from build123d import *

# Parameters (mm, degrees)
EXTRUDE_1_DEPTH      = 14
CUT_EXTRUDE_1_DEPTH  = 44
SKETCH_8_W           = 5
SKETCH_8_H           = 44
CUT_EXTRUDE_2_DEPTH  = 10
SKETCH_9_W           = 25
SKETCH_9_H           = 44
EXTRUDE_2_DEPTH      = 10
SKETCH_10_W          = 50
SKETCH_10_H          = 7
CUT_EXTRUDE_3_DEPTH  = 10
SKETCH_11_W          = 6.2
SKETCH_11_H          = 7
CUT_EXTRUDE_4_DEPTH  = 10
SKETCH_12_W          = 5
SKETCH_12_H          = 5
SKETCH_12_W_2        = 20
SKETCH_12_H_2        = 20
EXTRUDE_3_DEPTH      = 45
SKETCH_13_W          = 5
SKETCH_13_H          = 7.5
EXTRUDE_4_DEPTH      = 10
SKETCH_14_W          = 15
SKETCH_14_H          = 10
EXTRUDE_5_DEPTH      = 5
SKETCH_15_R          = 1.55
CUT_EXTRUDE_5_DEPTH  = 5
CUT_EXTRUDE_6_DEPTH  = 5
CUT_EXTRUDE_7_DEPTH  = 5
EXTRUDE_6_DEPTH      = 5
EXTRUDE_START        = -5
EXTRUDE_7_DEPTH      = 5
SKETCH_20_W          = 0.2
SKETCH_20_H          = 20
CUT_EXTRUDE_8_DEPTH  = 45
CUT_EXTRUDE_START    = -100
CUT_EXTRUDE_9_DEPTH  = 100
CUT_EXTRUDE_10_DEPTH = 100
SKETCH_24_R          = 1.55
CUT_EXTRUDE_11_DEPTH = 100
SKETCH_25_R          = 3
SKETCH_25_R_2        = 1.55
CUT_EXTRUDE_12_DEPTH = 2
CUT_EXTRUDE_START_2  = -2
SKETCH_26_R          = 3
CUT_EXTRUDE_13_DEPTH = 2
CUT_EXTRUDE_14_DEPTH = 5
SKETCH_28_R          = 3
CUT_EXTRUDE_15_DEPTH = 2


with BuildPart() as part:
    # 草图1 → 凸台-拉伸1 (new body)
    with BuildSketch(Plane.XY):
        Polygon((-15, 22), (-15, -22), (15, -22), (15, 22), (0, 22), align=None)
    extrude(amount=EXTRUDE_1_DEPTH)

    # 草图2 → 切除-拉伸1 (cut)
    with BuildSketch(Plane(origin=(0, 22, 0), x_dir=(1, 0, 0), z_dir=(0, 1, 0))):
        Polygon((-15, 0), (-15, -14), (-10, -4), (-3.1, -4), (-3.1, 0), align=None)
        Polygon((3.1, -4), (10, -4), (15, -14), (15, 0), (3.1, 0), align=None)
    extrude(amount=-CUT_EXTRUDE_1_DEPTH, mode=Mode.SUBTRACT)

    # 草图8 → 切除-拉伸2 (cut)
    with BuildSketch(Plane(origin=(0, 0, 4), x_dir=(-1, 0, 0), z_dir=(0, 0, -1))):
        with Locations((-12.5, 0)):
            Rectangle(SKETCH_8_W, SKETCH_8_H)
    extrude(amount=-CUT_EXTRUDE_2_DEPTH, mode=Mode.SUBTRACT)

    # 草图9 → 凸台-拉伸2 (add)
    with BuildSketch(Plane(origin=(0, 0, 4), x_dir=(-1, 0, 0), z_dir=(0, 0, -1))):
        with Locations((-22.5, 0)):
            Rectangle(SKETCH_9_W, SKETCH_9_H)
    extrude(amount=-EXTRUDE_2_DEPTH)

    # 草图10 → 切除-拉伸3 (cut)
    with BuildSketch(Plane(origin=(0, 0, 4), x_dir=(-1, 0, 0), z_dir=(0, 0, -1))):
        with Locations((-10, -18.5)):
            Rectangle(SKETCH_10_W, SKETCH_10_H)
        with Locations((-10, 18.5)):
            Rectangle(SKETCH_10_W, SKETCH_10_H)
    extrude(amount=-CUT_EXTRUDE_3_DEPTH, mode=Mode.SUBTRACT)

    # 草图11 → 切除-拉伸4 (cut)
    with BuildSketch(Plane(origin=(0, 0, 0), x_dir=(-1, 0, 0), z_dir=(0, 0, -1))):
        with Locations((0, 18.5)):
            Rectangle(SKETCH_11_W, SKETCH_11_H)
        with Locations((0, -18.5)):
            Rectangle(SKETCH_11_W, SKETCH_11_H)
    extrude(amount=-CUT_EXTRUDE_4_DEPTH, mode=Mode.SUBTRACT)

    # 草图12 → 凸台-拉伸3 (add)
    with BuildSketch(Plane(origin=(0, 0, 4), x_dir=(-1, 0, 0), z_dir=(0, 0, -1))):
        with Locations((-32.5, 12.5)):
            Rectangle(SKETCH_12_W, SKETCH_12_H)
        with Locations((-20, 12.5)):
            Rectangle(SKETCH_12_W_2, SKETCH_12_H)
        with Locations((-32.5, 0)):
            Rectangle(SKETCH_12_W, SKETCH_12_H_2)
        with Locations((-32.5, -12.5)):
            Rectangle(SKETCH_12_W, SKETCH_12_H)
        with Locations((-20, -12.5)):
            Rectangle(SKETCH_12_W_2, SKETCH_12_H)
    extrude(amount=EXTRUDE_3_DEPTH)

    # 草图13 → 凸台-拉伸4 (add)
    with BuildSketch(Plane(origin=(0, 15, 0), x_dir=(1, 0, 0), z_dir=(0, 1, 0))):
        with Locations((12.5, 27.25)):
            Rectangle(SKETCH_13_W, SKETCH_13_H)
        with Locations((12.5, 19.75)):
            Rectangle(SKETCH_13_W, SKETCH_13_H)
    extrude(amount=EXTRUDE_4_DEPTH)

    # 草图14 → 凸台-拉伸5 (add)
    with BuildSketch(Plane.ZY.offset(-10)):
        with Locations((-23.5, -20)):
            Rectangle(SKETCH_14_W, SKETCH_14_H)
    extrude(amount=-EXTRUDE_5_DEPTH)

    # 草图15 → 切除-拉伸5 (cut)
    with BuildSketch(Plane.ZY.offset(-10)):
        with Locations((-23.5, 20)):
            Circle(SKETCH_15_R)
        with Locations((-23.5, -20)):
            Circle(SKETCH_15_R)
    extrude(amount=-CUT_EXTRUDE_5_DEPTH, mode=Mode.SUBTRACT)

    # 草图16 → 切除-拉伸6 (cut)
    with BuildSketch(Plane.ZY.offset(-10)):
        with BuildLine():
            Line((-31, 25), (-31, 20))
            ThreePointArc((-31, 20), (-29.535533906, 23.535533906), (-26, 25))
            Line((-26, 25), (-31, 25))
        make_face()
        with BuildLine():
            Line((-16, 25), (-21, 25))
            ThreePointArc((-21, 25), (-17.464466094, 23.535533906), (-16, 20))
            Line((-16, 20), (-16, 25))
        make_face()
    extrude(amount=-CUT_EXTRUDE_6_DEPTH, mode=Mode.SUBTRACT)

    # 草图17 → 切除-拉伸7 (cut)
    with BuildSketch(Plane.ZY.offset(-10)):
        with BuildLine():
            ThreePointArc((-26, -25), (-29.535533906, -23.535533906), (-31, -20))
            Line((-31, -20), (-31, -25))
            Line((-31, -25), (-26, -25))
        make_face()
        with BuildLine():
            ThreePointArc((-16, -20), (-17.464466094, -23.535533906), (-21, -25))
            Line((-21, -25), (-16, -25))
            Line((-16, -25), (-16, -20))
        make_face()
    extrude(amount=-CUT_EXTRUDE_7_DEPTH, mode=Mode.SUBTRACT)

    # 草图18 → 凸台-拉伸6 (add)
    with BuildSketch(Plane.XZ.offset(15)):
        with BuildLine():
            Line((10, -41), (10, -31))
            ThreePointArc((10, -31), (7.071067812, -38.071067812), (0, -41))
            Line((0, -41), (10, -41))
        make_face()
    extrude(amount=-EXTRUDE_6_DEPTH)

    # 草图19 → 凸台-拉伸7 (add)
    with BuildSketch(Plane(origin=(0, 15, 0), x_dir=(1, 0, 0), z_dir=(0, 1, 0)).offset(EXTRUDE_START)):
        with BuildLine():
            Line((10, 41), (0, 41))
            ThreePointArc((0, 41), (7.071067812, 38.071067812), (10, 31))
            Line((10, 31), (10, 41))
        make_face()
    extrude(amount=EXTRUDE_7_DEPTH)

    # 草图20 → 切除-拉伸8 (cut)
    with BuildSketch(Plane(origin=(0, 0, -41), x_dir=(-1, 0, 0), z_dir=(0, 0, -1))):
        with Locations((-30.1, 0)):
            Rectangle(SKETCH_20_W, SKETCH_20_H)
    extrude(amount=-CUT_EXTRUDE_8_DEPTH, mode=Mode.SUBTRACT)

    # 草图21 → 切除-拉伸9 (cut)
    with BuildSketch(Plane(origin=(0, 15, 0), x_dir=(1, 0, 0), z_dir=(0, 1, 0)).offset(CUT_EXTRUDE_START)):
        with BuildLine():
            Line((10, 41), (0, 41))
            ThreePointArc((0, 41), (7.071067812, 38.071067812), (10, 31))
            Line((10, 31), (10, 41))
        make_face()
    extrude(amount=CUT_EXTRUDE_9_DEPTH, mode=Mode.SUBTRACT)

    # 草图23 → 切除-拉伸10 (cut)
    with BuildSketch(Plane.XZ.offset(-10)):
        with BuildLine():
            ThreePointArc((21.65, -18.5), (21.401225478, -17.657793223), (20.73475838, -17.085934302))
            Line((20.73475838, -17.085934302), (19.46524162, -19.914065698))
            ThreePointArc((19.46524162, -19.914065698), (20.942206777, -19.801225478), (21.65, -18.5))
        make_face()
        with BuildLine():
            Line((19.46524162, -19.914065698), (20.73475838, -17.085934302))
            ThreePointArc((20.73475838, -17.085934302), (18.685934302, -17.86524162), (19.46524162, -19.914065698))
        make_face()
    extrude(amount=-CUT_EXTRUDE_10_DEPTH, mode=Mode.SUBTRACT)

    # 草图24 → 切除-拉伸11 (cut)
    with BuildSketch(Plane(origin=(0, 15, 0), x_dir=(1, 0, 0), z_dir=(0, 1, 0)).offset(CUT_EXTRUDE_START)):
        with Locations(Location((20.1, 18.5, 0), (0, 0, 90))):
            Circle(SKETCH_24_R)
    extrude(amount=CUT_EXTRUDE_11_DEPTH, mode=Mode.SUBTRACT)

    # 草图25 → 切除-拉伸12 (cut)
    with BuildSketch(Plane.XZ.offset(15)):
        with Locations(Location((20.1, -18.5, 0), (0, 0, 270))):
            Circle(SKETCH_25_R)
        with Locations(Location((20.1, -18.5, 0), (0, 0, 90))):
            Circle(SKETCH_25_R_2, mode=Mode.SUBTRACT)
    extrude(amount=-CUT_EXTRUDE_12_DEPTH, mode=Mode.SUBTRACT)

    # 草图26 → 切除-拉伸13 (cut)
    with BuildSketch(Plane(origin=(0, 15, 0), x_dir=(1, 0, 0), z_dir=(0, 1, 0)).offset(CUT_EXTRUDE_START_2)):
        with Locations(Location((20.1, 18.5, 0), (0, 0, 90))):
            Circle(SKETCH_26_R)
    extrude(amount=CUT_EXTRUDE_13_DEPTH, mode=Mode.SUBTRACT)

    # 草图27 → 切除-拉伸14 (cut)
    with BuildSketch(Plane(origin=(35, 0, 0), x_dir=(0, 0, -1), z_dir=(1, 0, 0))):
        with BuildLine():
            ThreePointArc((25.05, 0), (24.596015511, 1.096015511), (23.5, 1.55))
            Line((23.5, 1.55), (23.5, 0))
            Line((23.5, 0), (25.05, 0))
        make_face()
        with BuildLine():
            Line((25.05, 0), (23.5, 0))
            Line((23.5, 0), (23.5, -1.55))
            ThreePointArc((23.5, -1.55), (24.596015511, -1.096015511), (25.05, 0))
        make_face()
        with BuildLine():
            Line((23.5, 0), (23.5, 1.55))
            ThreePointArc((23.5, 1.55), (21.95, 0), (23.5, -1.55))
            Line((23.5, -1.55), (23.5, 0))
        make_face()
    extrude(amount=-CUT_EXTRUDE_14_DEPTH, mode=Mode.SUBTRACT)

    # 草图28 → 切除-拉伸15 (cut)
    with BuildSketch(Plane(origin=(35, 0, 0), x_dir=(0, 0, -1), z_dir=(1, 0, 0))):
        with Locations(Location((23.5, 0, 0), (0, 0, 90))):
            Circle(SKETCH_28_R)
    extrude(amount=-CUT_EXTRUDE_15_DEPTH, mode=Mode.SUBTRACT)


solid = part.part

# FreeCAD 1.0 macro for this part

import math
import FreeCAD as App
import Part
import Sketcher
Q = App.Units.Quantity

doc = App.newDocument("Part")
params = doc.addObject("Spreadsheet::Sheet", "Params")
for row, (alias, value) in enumerate([
    ("sketch1_width", "30 mm"),
    ("sketch1_height", "44 mm"),
    ("pad1_length", "14 mm"),
    ("sketch2_height", "14 mm"),
    ("sketch2_height2", "4 mm"),
    ("sketch2_width", "6.9 mm"),
    ("sketch2_width2", "11.9 mm"),
    ("pocket1_length", "44 mm"),
    ("sketch3_width", "5 mm"),
    ("sketch3_height", "44 mm"),
    ("pocket2_length", "10 mm"),
    ("sketch4_width", "25 mm"),
    ("sketch4_height", "44 mm"),
    ("pad2_length", "10 mm"),
    ("sketch5_width", "50 mm"),
    ("sketch5_height", "7 mm"),
    ("pocket3_length", "10 mm"),
    ("sketch6_height", "7 mm"),
    ("sketch6_width", "6.2 mm"),
    ("pocket4_length", "10 mm"),
    ("sketch7_width", "25 mm"),
    ("sketch7_width2", "20 mm"),
    ("sketch7_height", "30 mm"),
    ("pad3_length", "45 mm"),
    ("sketch8_width", "5 mm"),
    ("sketch8_height", "15 mm"),
    ("pad4_length", "10 mm"),
    ("sketch9_width", "10 mm"),
    ("sketch9_height", "15 mm"),
    ("pad5_length", "5 mm"),
    ("sketch10_diameter", "3.1 mm"),
    ("pocket5_length", "5 mm"),
    ("sketch11_radius", "5 mm"),
    ("pocket6_length", "5 mm"),
    ("sketch12_radius", "5 mm"),
    ("pocket7_length", "5 mm"),
    ("sketch13_radius", "10 mm"),
    ("pad6_length", "5 mm"),
    ("sketch14_radius", "10 mm"),
    ("pad7_length", "5 mm"),
    ("sketch15_height", "20 mm"),
    ("sketch15_width", "0.2 mm"),
    ("pocket8_length", "45 mm"),
    ("sketch16_radius", "10 mm"),
    ("pocket9_length", "100 mm"),
    ("sketch17_radius", "1.55 mm"),
    ("pocket10_length", "100 mm"),
    ("sketch18_diameter", "3.1 mm"),
    ("pocket11_length", "100 mm"),
    ("sketch19_diameter", "6 mm"),
    ("sketch19_diameter2", "3.1 mm"),
    ("pocket12_length", "2 mm"),
    ("sketch20_diameter", "6 mm"),
    ("pocket13_length", "2 mm"),
    ("sketch21_radius", "1.55 mm"),
    ("pocket14_length", "5 mm"),
    ("sketch22_diameter", "6 mm"),
    ("pocket15_length", "2 mm"),
], start=1):
    params.set(f"A{row}", alias)
    params.set(f"B{row}", "=" + value)
    params.setAlias(f"B{row}", alias)

body = doc.addObject("PartDesign::Body", "Body")

sketch1 = body.newObject("Sketcher::SketchObject", "Sketch")
sketch1.AttachmentSupport = (doc.getObject("XY_Plane"), [""])
sketch1.MapMode = "FlatFace"
sketch1.addGeometry(Part.LineSegment(App.Vector(-15, 22, 0), App.Vector(-15, -22, 0)), False)
sketch1.addGeometry(Part.LineSegment(App.Vector(-15, -22, 0), App.Vector(15, -22, 0)), False)
sketch1.addGeometry(Part.LineSegment(App.Vector(15, -22, 0), App.Vector(15, 22, 0)), False)
sketch1.addGeometry(Part.LineSegment(App.Vector(15, 22, 0), App.Vector(-15, 22, 0)), False)
sketch1.addConstraint(Sketcher.Constraint("Coincident", 0, 2, 1, 1))
sketch1.addConstraint(Sketcher.Constraint("Coincident", 1, 2, 2, 1))
sketch1.addConstraint(Sketcher.Constraint("Coincident", 2, 2, 3, 1))
sketch1.addConstraint(Sketcher.Constraint("Coincident", 3, 2, 0, 1))
sketch1.addConstraint(Sketcher.Constraint("Vertical", 0))
sketch1.addConstraint(Sketcher.Constraint("Horizontal", 1))
sketch1.addConstraint(Sketcher.Constraint("Vertical", 2))
sketch1.addConstraint(Sketcher.Constraint("Horizontal", 3))
sketch1.addConstraint(Sketcher.Constraint("Symmetric", 0, 2, 2, 2, -1, 1))
sketch1.addConstraint(Sketcher.Constraint("DistanceX", 1, 1, 1, 2, Q("30 mm")))
sketch1.addConstraint(Sketcher.Constraint("DistanceY", 0, 2, 0, 1, Q("44 mm")))
sketch1.setExpression("Constraints[9]", "Params.sketch1_width")
sketch1.setExpression("Constraints[10]", "Params.sketch1_height")
pad1 = body.newObject("PartDesign::Pad", "Pad")
pad1.Profile = sketch1
pad1.setExpression("Length", "Params.pad1_length")

sketch2 = body.newObject("Sketcher::SketchObject", "Sketch001")
sketch2.AttachmentSupport = (doc.getObject("XZ_Plane"), [""])
sketch2.MapMode = "FlatFace"
sketch2.AttachmentOffset = App.Placement(App.Vector(0, 0, -22), App.Rotation())
sketch2.addGeometry(Part.LineSegment(App.Vector(-15, 0, 0), App.Vector(-15, 14, 0)), False)
sketch2.addGeometry(Part.LineSegment(App.Vector(-15, 14, 0), App.Vector(-10, 4, 0)), False)
sketch2.addGeometry(Part.LineSegment(App.Vector(-10, 4, 0), App.Vector(-3.1, 4, 0)), False)
sketch2.addGeometry(Part.LineSegment(App.Vector(-3.1, 4, 0), App.Vector(-3.1, 0, 0)), False)
sketch2.addGeometry(Part.LineSegment(App.Vector(-3.1, 0, 0), App.Vector(-15, 0, 0)), False)
sketch2.addGeometry(Part.LineSegment(App.Vector(3.1, 4, 0), App.Vector(10, 4, 0)), False)
sketch2.addGeometry(Part.LineSegment(App.Vector(10, 4, 0), App.Vector(15, 14, 0)), False)
sketch2.addGeometry(Part.LineSegment(App.Vector(15, 14, 0), App.Vector(15, 0, 0)), False)
sketch2.addGeometry(Part.LineSegment(App.Vector(15, 0, 0), App.Vector(3.1, 0, 0)), False)
sketch2.addGeometry(Part.LineSegment(App.Vector(3.1, 0, 0), App.Vector(3.1, 4, 0)), False)
sketch2.addConstraint(Sketcher.Constraint("Coincident", 0, 2, 1, 1))
sketch2.addConstraint(Sketcher.Constraint("Coincident", 1, 2, 2, 1))
sketch2.addConstraint(Sketcher.Constraint("Coincident", 2, 2, 3, 1))
sketch2.addConstraint(Sketcher.Constraint("Coincident", 3, 2, 4, 1))
sketch2.addConstraint(Sketcher.Constraint("Coincident", 4, 2, 0, 1))
sketch2.addConstraint(Sketcher.Constraint("Coincident", 5, 2, 6, 1))
sketch2.addConstraint(Sketcher.Constraint("Coincident", 6, 2, 7, 1))
sketch2.addConstraint(Sketcher.Constraint("Coincident", 7, 2, 8, 1))
sketch2.addConstraint(Sketcher.Constraint("Coincident", 8, 2, 9, 1))
sketch2.addConstraint(Sketcher.Constraint("Coincident", 9, 2, 5, 1))
sketch2.addConstraint(Sketcher.Constraint("Vertical", 0))
sketch2.addConstraint(Sketcher.Constraint("Horizontal", 2))
sketch2.addConstraint(Sketcher.Constraint("Vertical", 3))
sketch2.addConstraint(Sketcher.Constraint("Horizontal", 4))
sketch2.addConstraint(Sketcher.Constraint("Horizontal", 5))
sketch2.addConstraint(Sketcher.Constraint("Vertical", 7))
sketch2.addConstraint(Sketcher.Constraint("Horizontal", 8))
sketch2.addConstraint(Sketcher.Constraint("Vertical", 9))
sketch2.addConstraint(Sketcher.Constraint("Symmetric", 4, 2, 7, 2, -1, 1))
sketch2.addConstraint(Sketcher.Constraint("Symmetric", 1, 2, 5, 2, -2))
sketch2.addConstraint(Sketcher.Constraint("Symmetric", 3, 2, 8, 2, -2))
sketch2.addConstraint(Sketcher.Constraint("Horizontal", 0, 2, 6, 2))
sketch2.addConstraint(Sketcher.Constraint("DistanceY", 0, 1, 0, 2, Q("14 mm")))
sketch2.addConstraint(Sketcher.Constraint("DistanceY", 3, 2, 3, 1, Q("4 mm")))
sketch2.addConstraint(Sketcher.Constraint("DistanceX", 2, 1, 2, 2, Q("6.9 mm")))
sketch2.addConstraint(Sketcher.Constraint("DistanceX", 4, 2, 4, 1, Q("11.9 mm")))
sketch2.addConstraint(Sketcher.Constraint("DistanceX", 0, 2, -1, 1, Q("15 mm")))
sketch2.setExpression("Constraints[22]", "Params.sketch2_height")
sketch2.setExpression("Constraints[23]", "Params.sketch2_height2")
sketch2.setExpression("Constraints[24]", "Params.sketch2_width")
sketch2.setExpression("Constraints[25]", "Params.sketch2_width2")
pocket1 = body.newObject("PartDesign::Pocket", "Pocket")
pocket1.Profile = sketch2
pocket1.setExpression("Length", "Params.pocket1_length")
pocket1.Reversed = True

sketch3 = body.newObject("Sketcher::SketchObject", "Sketch002")
sketch3.AttachmentSupport = (doc.getObject("XY_Plane"), [""])
sketch3.MapMode = "FlatFace"
sketch3.AttachmentOffset = App.Placement(App.Vector(0, 0, 4), App.Rotation())
sketch3.addGeometry(Part.LineSegment(App.Vector(15, 22, 0), App.Vector(15, -22, 0)), False)
sketch3.addGeometry(Part.LineSegment(App.Vector(15, -22, 0), App.Vector(10, -22, 0)), False)
sketch3.addGeometry(Part.LineSegment(App.Vector(10, -22, 0), App.Vector(10, 22, 0)), False)
sketch3.addGeometry(Part.LineSegment(App.Vector(10, 22, 0), App.Vector(15, 22, 0)), False)
sketch3.addConstraint(Sketcher.Constraint("Coincident", 0, 2, 1, 1))
sketch3.addConstraint(Sketcher.Constraint("Coincident", 1, 2, 2, 1))
sketch3.addConstraint(Sketcher.Constraint("Coincident", 2, 2, 3, 1))
sketch3.addConstraint(Sketcher.Constraint("Coincident", 3, 2, 0, 1))
sketch3.addConstraint(Sketcher.Constraint("Vertical", 0))
sketch3.addConstraint(Sketcher.Constraint("Horizontal", 1))
sketch3.addConstraint(Sketcher.Constraint("Vertical", 2))
sketch3.addConstraint(Sketcher.Constraint("Horizontal", 3))
sketch3.addConstraint(Sketcher.Constraint("DistanceX", 1, 2, 1, 1, Q("5 mm")))
sketch3.addConstraint(Sketcher.Constraint("DistanceY", 0, 2, 0, 1, Q("44 mm")))
sketch3.addConstraint(Sketcher.Constraint("DistanceX", -1, 1, 0, 2, Q("15 mm")))
sketch3.addConstraint(Sketcher.Constraint("DistanceY", 0, 2, -1, 1, Q("22 mm")))
sketch3.setExpression("Constraints[8]", "Params.sketch3_width")
sketch3.setExpression("Constraints[9]", "Params.sketch3_height")
pocket2 = body.newObject("PartDesign::Pocket", "Pocket001")
pocket2.Profile = sketch3
pocket2.setExpression("Length", "Params.pocket2_length")
pocket2.Reversed = True

sketch4 = body.newObject("Sketcher::SketchObject", "Sketch003")
sketch4.AttachmentSupport = (doc.getObject("XY_Plane"), [""])
sketch4.MapMode = "FlatFace"
sketch4.AttachmentOffset = App.Placement(App.Vector(0, 0, 4), App.Rotation())
sketch4.addGeometry(Part.LineSegment(App.Vector(35, 22, 0), App.Vector(35, -22, 0)), False)
sketch4.addGeometry(Part.LineSegment(App.Vector(35, -22, 0), App.Vector(10, -22, 0)), False)
sketch4.addGeometry(Part.LineSegment(App.Vector(10, -22, 0), App.Vector(10, 22, 0)), False)
sketch4.addGeometry(Part.LineSegment(App.Vector(10, 22, 0), App.Vector(35, 22, 0)), False)
sketch4.addConstraint(Sketcher.Constraint("Coincident", 0, 2, 1, 1))
sketch4.addConstraint(Sketcher.Constraint("Coincident", 1, 2, 2, 1))
sketch4.addConstraint(Sketcher.Constraint("Coincident", 2, 2, 3, 1))
sketch4.addConstraint(Sketcher.Constraint("Coincident", 3, 2, 0, 1))
sketch4.addConstraint(Sketcher.Constraint("Vertical", 0))
sketch4.addConstraint(Sketcher.Constraint("Horizontal", 1))
sketch4.addConstraint(Sketcher.Constraint("Vertical", 2))
sketch4.addConstraint(Sketcher.Constraint("Horizontal", 3))
sketch4.addConstraint(Sketcher.Constraint("DistanceX", 1, 2, 1, 1, Q("25 mm")))
sketch4.addConstraint(Sketcher.Constraint("DistanceY", 0, 2, 0, 1, Q("44 mm")))
sketch4.addConstraint(Sketcher.Constraint("DistanceX", -1, 1, 0, 2, Q("35 mm")))
sketch4.addConstraint(Sketcher.Constraint("DistanceY", 0, 2, -1, 1, Q("22 mm")))
sketch4.setExpression("Constraints[8]", "Params.sketch4_width")
sketch4.setExpression("Constraints[9]", "Params.sketch4_height")
pad2 = body.newObject("PartDesign::Pad", "Pad001")
pad2.Profile = sketch4
pad2.setExpression("Length", "Params.pad2_length")

sketch5 = body.newObject("Sketcher::SketchObject", "Sketch004")
sketch5.AttachmentSupport = (doc.getObject("XY_Plane"), [""])
sketch5.MapMode = "FlatFace"
sketch5.AttachmentOffset = App.Placement(App.Vector(0, 0, 4), App.Rotation())
sketch5.addGeometry(Part.LineSegment(App.Vector(35, -15, 0), App.Vector(35, -22, 0)), False)
sketch5.addGeometry(Part.LineSegment(App.Vector(35, -22, 0), App.Vector(-15, -22, 0)), False)
sketch5.addGeometry(Part.LineSegment(App.Vector(-15, -22, 0), App.Vector(-15, -15, 0)), False)
sketch5.addGeometry(Part.LineSegment(App.Vector(-15, -15, 0), App.Vector(35, -15, 0)), False)
sketch5.addGeometry(Part.LineSegment(App.Vector(35, 22, 0), App.Vector(35, 15, 0)), False)
sketch5.addGeometry(Part.LineSegment(App.Vector(35, 15, 0), App.Vector(-15, 15, 0)), False)
sketch5.addGeometry(Part.LineSegment(App.Vector(-15, 15, 0), App.Vector(-15, 22, 0)), False)
sketch5.addGeometry(Part.LineSegment(App.Vector(-15, 22, 0), App.Vector(35, 22, 0)), False)
sketch5.addConstraint(Sketcher.Constraint("Coincident", 0, 2, 1, 1))
sketch5.addConstraint(Sketcher.Constraint("Coincident", 1, 2, 2, 1))
sketch5.addConstraint(Sketcher.Constraint("Coincident", 2, 2, 3, 1))
sketch5.addConstraint(Sketcher.Constraint("Coincident", 3, 2, 0, 1))
sketch5.addConstraint(Sketcher.Constraint("Coincident", 4, 2, 5, 1))
sketch5.addConstraint(Sketcher.Constraint("Coincident", 5, 2, 6, 1))
sketch5.addConstraint(Sketcher.Constraint("Coincident", 6, 2, 7, 1))
sketch5.addConstraint(Sketcher.Constraint("Coincident", 7, 2, 4, 1))
sketch5.addConstraint(Sketcher.Constraint("Vertical", 0))
sketch5.addConstraint(Sketcher.Constraint("Horizontal", 1))
sketch5.addConstraint(Sketcher.Constraint("Vertical", 2))
sketch5.addConstraint(Sketcher.Constraint("Horizontal", 3))
sketch5.addConstraint(Sketcher.Constraint("Vertical", 4))
sketch5.addConstraint(Sketcher.Constraint("Horizontal", 5))
sketch5.addConstraint(Sketcher.Constraint("Vertical", 6))
sketch5.addConstraint(Sketcher.Constraint("Horizontal", 7))
sketch5.addConstraint(Sketcher.Constraint("Symmetric", 3, 2, 4, 2, -1))
sketch5.addConstraint(Sketcher.Constraint("Symmetric", 1, 2, 6, 2, -1))
sketch5.addConstraint(Sketcher.Constraint("DistanceX", 1, 2, 1, 1, Q("50 mm")))
sketch5.addConstraint(Sketcher.Constraint("DistanceY", 0, 2, 0, 1, Q("7 mm")))
sketch5.addConstraint(Sketcher.Constraint("DistanceX", -1, 1, 0, 2, Q("35 mm")))
sketch5.addConstraint(Sketcher.Constraint("DistanceY", 0, 2, -1, 1, Q("22 mm")))
sketch5.setExpression("Constraints[18]", "Params.sketch5_width")
sketch5.setExpression("Constraints[19]", "Params.sketch5_height")
pocket3 = body.newObject("PartDesign::Pocket", "Pocket002")
pocket3.Profile = sketch5
pocket3.setExpression("Length", "Params.pocket3_length")
pocket3.Reversed = True

sketch6 = body.newObject("Sketcher::SketchObject", "Sketch005")
sketch6.AttachmentSupport = (doc.getObject("XY_Plane"), [""])
sketch6.MapMode = "FlatFace"
sketch6.addGeometry(Part.LineSegment(App.Vector(3, 22, 0), App.Vector(3, 15, 0)), False)
sketch6.addGeometry(Part.LineSegment(App.Vector(3, 15, 0), App.Vector(-3, 15, 0)), False)
sketch6.addGeometry(Part.LineSegment(App.Vector(-3, 15, 0), App.Vector(-3, 22, 0)), False)
sketch6.addGeometry(Part.LineSegment(App.Vector(-3, 22, 0), App.Vector(3, 22, 0)), False)
sketch6.addGeometry(Part.LineSegment(App.Vector(3, -15, 0), App.Vector(3, -22, 0)), False)
sketch6.addGeometry(Part.LineSegment(App.Vector(3, -22, 0), App.Vector(-3, -22, 0)), False)
sketch6.addGeometry(Part.LineSegment(App.Vector(-3, -22, 0), App.Vector(-3, -15, 0)), False)
sketch6.addGeometry(Part.LineSegment(App.Vector(-3, -15, 0), App.Vector(3, -15, 0)), False)
sketch6.addConstraint(Sketcher.Constraint("Coincident", 0, 2, 1, 1))
sketch6.addConstraint(Sketcher.Constraint("Coincident", 1, 2, 2, 1))
sketch6.addConstraint(Sketcher.Constraint("Coincident", 2, 2, 3, 1))
sketch6.addConstraint(Sketcher.Constraint("Coincident", 3, 2, 0, 1))
sketch6.addConstraint(Sketcher.Constraint("Coincident", 4, 2, 5, 1))
sketch6.addConstraint(Sketcher.Constraint("Coincident", 5, 2, 6, 1))
sketch6.addConstraint(Sketcher.Constraint("Coincident", 6, 2, 7, 1))
sketch6.addConstraint(Sketcher.Constraint("Coincident", 7, 2, 4, 1))
sketch6.addConstraint(Sketcher.Constraint("Vertical", 0))
sketch6.addConstraint(Sketcher.Constraint("Horizontal", 1))
sketch6.addConstraint(Sketcher.Constraint("Vertical", 2))
sketch6.addConstraint(Sketcher.Constraint("Horizontal", 3))
sketch6.addConstraint(Sketcher.Constraint("Vertical", 4))
sketch6.addConstraint(Sketcher.Constraint("Horizontal", 5))
sketch6.addConstraint(Sketcher.Constraint("Vertical", 6))
sketch6.addConstraint(Sketcher.Constraint("Horizontal", 7))
sketch6.addConstraint(Sketcher.Constraint("Symmetric", 2, 2, 4, 2, -1, 1))
sketch6.addConstraint(Sketcher.Constraint("Symmetric", 0, 2, 6, 2, -1, 1))
sketch6.addConstraint(Sketcher.Constraint("Vertical", 3, 2, 4, 2))
sketch6.addConstraint(Sketcher.Constraint("DistanceY", 0, 2, 0, 1, Q("7 mm")))
sketch6.addConstraint(Sketcher.Constraint("DistanceX", 1, 2, 1, 1, Q("6.2 mm")))
sketch6.addConstraint(Sketcher.Constraint("DistanceY", -1, 1, 0, 2, Q("15 mm")))
sketch6.setExpression("Constraints[19]", "Params.sketch6_height")
sketch6.setExpression("Constraints[20]", "Params.sketch6_width")
pocket4 = body.newObject("PartDesign::Pocket", "Pocket003")
pocket4.Profile = sketch6
pocket4.setExpression("Length", "Params.pocket4_length")
pocket4.Reversed = True

sketch7 = body.newObject("Sketcher::SketchObject", "Sketch006")
sketch7.AttachmentSupport = (doc.getObject("XY_Plane"), [""])
sketch7.MapMode = "FlatFace"
sketch7.AttachmentOffset = App.Placement(App.Vector(0, 0, 4), App.Rotation())
sketch7.addGeometry(Part.LineSegment(App.Vector(35, 15, 0), App.Vector(35, -15, 0)), False)
sketch7.addGeometry(Part.LineSegment(App.Vector(35, -15, 0), App.Vector(10, -15, 0)), False)
sketch7.addGeometry(Part.LineSegment(App.Vector(10, -15, 0), App.Vector(10, -10, 0)), False)
sketch7.addGeometry(Part.LineSegment(App.Vector(10, -10, 0), App.Vector(30, -10, 0)), False)
sketch7.addGeometry(Part.LineSegment(App.Vector(30, -10, 0), App.Vector(30, 10, 0)), False)
sketch7.addGeometry(Part.LineSegment(App.Vector(30, 10, 0), App.Vector(10, 10, 0)), False)
sketch7.addGeometry(Part.LineSegment(App.Vector(10, 10, 0), App.Vector(10, 15, 0)), False)
sketch7.addGeometry(Part.LineSegment(App.Vector(10, 15, 0), App.Vector(35, 15, 0)), False)
sketch7.addConstraint(Sketcher.Constraint("Coincident", 0, 2, 1, 1))
sketch7.addConstraint(Sketcher.Constraint("Coincident", 1, 2, 2, 1))
sketch7.addConstraint(Sketcher.Constraint("Coincident", 2, 2, 3, 1))
sketch7.addConstraint(Sketcher.Constraint("Coincident", 3, 2, 4, 1))
sketch7.addConstraint(Sketcher.Constraint("Coincident", 4, 2, 5, 1))
sketch7.addConstraint(Sketcher.Constraint("Coincident", 5, 2, 6, 1))
sketch7.addConstraint(Sketcher.Constraint("Coincident", 6, 2, 7, 1))
sketch7.addConstraint(Sketcher.Constraint("Coincident", 7, 2, 0, 1))
sketch7.addConstraint(Sketcher.Constraint("Vertical", 0))
sketch7.addConstraint(Sketcher.Constraint("Horizontal", 1))
sketch7.addConstraint(Sketcher.Constraint("Vertical", 2))
sketch7.addConstraint(Sketcher.Constraint("Horizontal", 3))
sketch7.addConstraint(Sketcher.Constraint("Vertical", 4))
sketch7.addConstraint(Sketcher.Constraint("Horizontal", 5))
sketch7.addConstraint(Sketcher.Constraint("Vertical", 6))
sketch7.addConstraint(Sketcher.Constraint("Horizontal", 7))
sketch7.addConstraint(Sketcher.Constraint("Symmetric", 2, 2, 5, 2, -1))
sketch7.addConstraint(Sketcher.Constraint("Equal", 5, 4))
sketch7.addConstraint(Sketcher.Constraint("Equal", 2, 6))
sketch7.addConstraint(Sketcher.Constraint("DistanceX", 1, 2, 1, 1, Q("25 mm")))
sketch7.addConstraint(Sketcher.Constraint("DistanceX", 3, 1, 3, 2, Q("20 mm")))
sketch7.addConstraint(Sketcher.Constraint("DistanceY", 0, 2, 0, 1, Q("30 mm")))
sketch7.addConstraint(Sketcher.Constraint("DistanceX", -1, 1, 0, 2, Q("35 mm")))
sketch7.setExpression("Constraints[19]", "Params.sketch7_width")
sketch7.setExpression("Constraints[20]", "Params.sketch7_width2")
sketch7.setExpression("Constraints[21]", "Params.sketch7_height")
pad3 = body.newObject("PartDesign::Pad", "Pad002")
pad3.Profile = sketch7
pad3.setExpression("Length", "Params.pad3_length")
pad3.Reversed = True

sketch8 = body.newObject("Sketcher::SketchObject", "Sketch007")
sketch8.AttachmentSupport = (doc.getObject("XZ_Plane"), [""])
sketch8.MapMode = "FlatFace"
sketch8.AttachmentOffset = App.Placement(App.Vector(0, 0, -15), App.Rotation())
sketch8.addGeometry(Part.LineSegment(App.Vector(10, -31, 0), App.Vector(10, -16, 0)), False)
sketch8.addGeometry(Part.LineSegment(App.Vector(10, -16, 0), App.Vector(15, -16, 0)), False)
sketch8.addGeometry(Part.LineSegment(App.Vector(15, -16, 0), App.Vector(15, -31, 0)), False)
sketch8.addGeometry(Part.LineSegment(App.Vector(15, -31, 0), App.Vector(10, -31, 0)), False)
sketch8.addConstraint(Sketcher.Constraint("Coincident", 0, 2, 1, 1))
sketch8.addConstraint(Sketcher.Constraint("Coincident", 1, 2, 2, 1))
sketch8.addConstraint(Sketcher.Constraint("Coincident", 2, 2, 3, 1))
sketch8.addConstraint(Sketcher.Constraint("Coincident", 3, 2, 0, 1))
sketch8.addConstraint(Sketcher.Constraint("Vertical", 0))
sketch8.addConstraint(Sketcher.Constraint("Horizontal", 1))
sketch8.addConstraint(Sketcher.Constraint("Vertical", 2))
sketch8.addConstraint(Sketcher.Constraint("Horizontal", 3))
sketch8.addConstraint(Sketcher.Constraint("DistanceX", 1, 1, 1, 2, Q("5 mm")))
sketch8.addConstraint(Sketcher.Constraint("DistanceY", 0, 1, 0, 2, Q("15 mm")))
sketch8.addConstraint(Sketcher.Constraint("DistanceX", -1, 1, 0, 2, Q("10 mm")))
sketch8.addConstraint(Sketcher.Constraint("DistanceY", 0, 2, -1, 1, Q("16 mm")))
sketch8.setExpression("Constraints[8]", "Params.sketch8_width")
sketch8.setExpression("Constraints[9]", "Params.sketch8_height")
pad4 = body.newObject("PartDesign::Pad", "Pad003")
pad4.Profile = sketch8
pad4.setExpression("Length", "Params.pad4_length")
pad4.Reversed = True

sketch9 = body.newObject("Sketcher::SketchObject", "Sketch008")
sketch9.AttachmentSupport = (doc.getObject("YZ_Plane"), [""])
sketch9.MapMode = "FlatFace"
sketch9.AttachmentOffset = App.Placement(App.Vector(0, 0, 10), App.Rotation())
sketch9.addGeometry(Part.LineSegment(App.Vector(-15, -31, 0), App.Vector(-25, -31, 0)), False)
sketch9.addGeometry(Part.LineSegment(App.Vector(-25, -31, 0), App.Vector(-25, -16, 0)), False)
sketch9.addGeometry(Part.LineSegment(App.Vector(-25, -16, 0), App.Vector(-15, -16, 0)), False)
sketch9.addGeometry(Part.LineSegment(App.Vector(-15, -16, 0), App.Vector(-15, -31, 0)), False)
sketch9.addConstraint(Sketcher.Constraint("Coincident", 0, 2, 1, 1))
sketch9.addConstraint(Sketcher.Constraint("Coincident", 1, 2, 2, 1))
sketch9.addConstraint(Sketcher.Constraint("Coincident", 2, 2, 3, 1))
sketch9.addConstraint(Sketcher.Constraint("Coincident", 3, 2, 0, 1))
sketch9.addConstraint(Sketcher.Constraint("Horizontal", 0))
sketch9.addConstraint(Sketcher.Constraint("Vertical", 1))
sketch9.addConstraint(Sketcher.Constraint("Horizontal", 2))
sketch9.addConstraint(Sketcher.Constraint("Vertical", 3))
sketch9.addConstraint(Sketcher.Constraint("DistanceX", 0, 2, 0, 1, Q("10 mm")))
sketch9.addConstraint(Sketcher.Constraint("DistanceY", 1, 1, 1, 2, Q("15 mm")))
sketch9.addConstraint(Sketcher.Constraint("DistanceX", 0, 2, -1, 1, Q("25 mm")))
sketch9.addConstraint(Sketcher.Constraint("DistanceY", 0, 2, -1, 1, Q("31 mm")))
sketch9.setExpression("Constraints[8]", "Params.sketch9_width")
sketch9.setExpression("Constraints[9]", "Params.sketch9_height")
pad5 = body.newObject("PartDesign::Pad", "Pad004")
pad5.Profile = sketch9
pad5.setExpression("Length", "Params.pad5_length")

sketch10 = body.newObject("Sketcher::SketchObject", "Sketch009")
sketch10.AttachmentSupport = (doc.getObject("YZ_Plane"), [""])
sketch10.MapMode = "FlatFace"
sketch10.AttachmentOffset = App.Placement(App.Vector(0, 0, 10), App.Rotation())
sketch10.addGeometry(Part.Circle(App.Vector(20, -23.5, 0), App.Vector(0, 0, 1), 1.6), False)
sketch10.addGeometry(Part.Circle(App.Vector(-20, -23.5, 0), App.Vector(0, 0, 1), 1.6), False)
sketch10.addConstraint(Sketcher.Constraint("Equal", 0, 1))
sketch10.addConstraint(Sketcher.Constraint("Symmetric", 0, 3, 1, 3, -2))
sketch10.addConstraint(Sketcher.Constraint("Diameter", 0, Q("3.1 mm")))
sketch10.addConstraint(Sketcher.Constraint("DistanceX", -1, 1, 0, 3, Q("20 mm")))
sketch10.addConstraint(Sketcher.Constraint("DistanceY", 0, 3, -1, 1, Q("23.5 mm")))
sketch10.setExpression("Constraints[2]", "Params.sketch10_diameter")
pocket5 = body.newObject("PartDesign::Pocket", "Pocket004")
pocket5.Profile = sketch10
pocket5.setExpression("Length", "Params.pocket5_length")
pocket5.Reversed = True

sketch11 = body.newObject("Sketcher::SketchObject", "Sketch010")
sketch11.AttachmentSupport = (doc.getObject("YZ_Plane"), [""])
sketch11.MapMode = "FlatFace"
sketch11.AttachmentOffset = App.Placement(App.Vector(0, 0, 10), App.Rotation())
sketch11.addGeometry(Part.LineSegment(App.Vector(25, -31, 0), App.Vector(20, -31, 0)), False)
sketch11.addGeometry(Part.ArcOfCircle(Part.Circle(App.Vector(20, -26, 0), App.Vector(0, 0, 1), 5), math.radians(-90), math.radians(0)), False)
sketch11.addGeometry(Part.LineSegment(App.Vector(25, -26, 0), App.Vector(25, -31, 0)), False)
sketch11.addGeometry(Part.LineSegment(App.Vector(25, -16, 0), App.Vector(25, -21, 0)), False)
sketch11.addGeometry(Part.ArcOfCircle(Part.Circle(App.Vector(20, -21, 0), App.Vector(0, 0, 1), 5), math.radians(0), math.radians(90)), False)
sketch11.addGeometry(Part.LineSegment(App.Vector(20, -16, 0), App.Vector(25, -16, 0)), False)
sketch11.addConstraint(Sketcher.Constraint("Tangent", 0, 2, 1, 1))
sketch11.addConstraint(Sketcher.Constraint("Tangent", 1, 2, 2, 1))
sketch11.addConstraint(Sketcher.Constraint("Coincident", 2, 2, 0, 1))
sketch11.addConstraint(Sketcher.Constraint("Tangent", 3, 2, 4, 1))
sketch11.addConstraint(Sketcher.Constraint("Tangent", 4, 2, 5, 1))
sketch11.addConstraint(Sketcher.Constraint("Coincident", 5, 2, 3, 1))
sketch11.addConstraint(Sketcher.Constraint("Horizontal", 0))
sketch11.addConstraint(Sketcher.Constraint("Vertical", 2))
sketch11.addConstraint(Sketcher.Constraint("Vertical", 3))
sketch11.addConstraint(Sketcher.Constraint("Horizontal", 5))
sketch11.addConstraint(Sketcher.Constraint("Equal", 1, 4))
sketch11.addConstraint(Sketcher.Constraint("Vertical", 1, 3, 4, 3))
sketch11.addConstraint(Sketcher.Constraint("Radius", 1, Q("5 mm")))
sketch11.addConstraint(Sketcher.Constraint("DistanceX", -1, 1, 1, 3, Q("20 mm")))
sketch11.addConstraint(Sketcher.Constraint("DistanceY", 1, 3, -1, 1, Q("26 mm")))
sketch11.addConstraint(Sketcher.Constraint("DistanceY", 4, 3, -1, 1, Q("21 mm")))
sketch11.setExpression("Constraints[12]", "Params.sketch11_radius")
pocket6 = body.newObject("PartDesign::Pocket", "Pocket005")
pocket6.Profile = sketch11
pocket6.setExpression("Length", "Params.pocket6_length")
pocket6.Reversed = True

sketch12 = body.newObject("Sketcher::SketchObject", "Sketch011")
sketch12.AttachmentSupport = (doc.getObject("YZ_Plane"), [""])
sketch12.MapMode = "FlatFace"
sketch12.AttachmentOffset = App.Placement(App.Vector(0, 0, 10), App.Rotation())
sketch12.addGeometry(Part.ArcOfCircle(Part.Circle(App.Vector(-20, -26, 0), App.Vector(0, 0, 1), 5), math.radians(180), math.radians(270)), False)
sketch12.addGeometry(Part.LineSegment(App.Vector(-20, -31, 0), App.Vector(-25, -31, 0)), False)
sketch12.addGeometry(Part.LineSegment(App.Vector(-25, -31, 0), App.Vector(-25, -26, 0)), False)
sketch12.addGeometry(Part.ArcOfCircle(Part.Circle(App.Vector(-20, -21, 0), App.Vector(0, 0, 1), 5), math.radians(90), math.radians(180)), False)
sketch12.addGeometry(Part.LineSegment(App.Vector(-25, -21, 0), App.Vector(-25, -16, 0)), False)
sketch12.addGeometry(Part.LineSegment(App.Vector(-25, -16, 0), App.Vector(-20, -16, 0)), False)
sketch12.addConstraint(Sketcher.Constraint("Tangent", 0, 2, 1, 1))
sketch12.addConstraint(Sketcher.Constraint("Coincident", 1, 2, 2, 1))
sketch12.addConstraint(Sketcher.Constraint("Tangent", 2, 2, 0, 1))
sketch12.addConstraint(Sketcher.Constraint("Tangent", 3, 2, 4, 1))
sketch12.addConstraint(Sketcher.Constraint("Coincident", 4, 2, 5, 1))
sketch12.addConstraint(Sketcher.Constraint("Tangent", 5, 2, 3, 1))
sketch12.addConstraint(Sketcher.Constraint("Horizontal", 1))
sketch12.addConstraint(Sketcher.Constraint("Vertical", 2))
sketch12.addConstraint(Sketcher.Constraint("Vertical", 4))
sketch12.addConstraint(Sketcher.Constraint("Horizontal", 5))
sketch12.addConstraint(Sketcher.Constraint("Equal", 0, 3))
sketch12.addConstraint(Sketcher.Constraint("Vertical", 0, 3, 3, 3))
sketch12.addConstraint(Sketcher.Constraint("Radius", 0, Q("5 mm")))
sketch12.addConstraint(Sketcher.Constraint("DistanceX", 0, 3, -1, 1, Q("20 mm")))
sketch12.addConstraint(Sketcher.Constraint("DistanceY", 0, 3, -1, 1, Q("26 mm")))
sketch12.addConstraint(Sketcher.Constraint("DistanceY", 3, 3, -1, 1, Q("21 mm")))
sketch12.setExpression("Constraints[12]", "Params.sketch12_radius")
pocket7 = body.newObject("PartDesign::Pocket", "Pocket006")
pocket7.Profile = sketch12
pocket7.setExpression("Length", "Params.pocket7_length")
pocket7.Reversed = True

sketch13 = body.newObject("Sketcher::SketchObject", "Sketch012")
sketch13.AttachmentSupport = (doc.getObject("XZ_Plane"), [""])
sketch13.MapMode = "FlatFace"
sketch13.AttachmentOffset = App.Placement(App.Vector(0, 0, 15), App.Rotation())
sketch13.addGeometry(Part.LineSegment(App.Vector(10, -41, 0), App.Vector(10, -31, 0)), False)
sketch13.addGeometry(Part.ArcOfCircle(Part.Circle(App.Vector(0, -31, 0), App.Vector(0, 0, 1), 10), math.radians(-90), math.radians(0)), False)
sketch13.addGeometry(Part.LineSegment(App.Vector(0, -41, 0), App.Vector(10, -41, 0)), False)
sketch13.addConstraint(Sketcher.Constraint("Tangent", 0, 2, 1, 2))
sketch13.addConstraint(Sketcher.Constraint("Tangent", 1, 1, 2, 1))
sketch13.addConstraint(Sketcher.Constraint("Coincident", 2, 2, 0, 1))
sketch13.addConstraint(Sketcher.Constraint("Vertical", 0))
sketch13.addConstraint(Sketcher.Constraint("Horizontal", 2))
sketch13.addConstraint(Sketcher.Constraint("PointOnObject", 1, 3, -2))
sketch13.addConstraint(Sketcher.Constraint("Radius", 1, Q("10 mm")))
sketch13.addConstraint(Sketcher.Constraint("DistanceY", 1, 3, -1, 1, Q("31 mm")))
sketch13.setExpression("Constraints[6]", "Params.sketch13_radius")
pad6 = body.newObject("PartDesign::Pad", "Pad005")
pad6.Profile = sketch13
pad6.setExpression("Length", "Params.pad6_length")
pad6.Reversed = True

sketch14 = body.newObject("Sketcher::SketchObject", "Sketch013")
sketch14.AttachmentSupport = (doc.getObject("XZ_Plane"), [""])
sketch14.MapMode = "FlatFace"
sketch14.AttachmentOffset = App.Placement(App.Vector(0, 0, -10), App.Rotation())
sketch14.addGeometry(Part.LineSegment(App.Vector(10, -41, 0), App.Vector(0, -41, 0)), False)
sketch14.addGeometry(Part.ArcOfCircle(Part.Circle(App.Vector(0, -31, 0), App.Vector(0, 0, 1), 10), math.radians(-90), math.radians(0)), False)
sketch14.addGeometry(Part.LineSegment(App.Vector(10, -31, 0), App.Vector(10, -41, 0)), False)
sketch14.addConstraint(Sketcher.Constraint("Tangent", 0, 2, 1, 1))
sketch14.addConstraint(Sketcher.Constraint("Tangent", 1, 2, 2, 1))
sketch14.addConstraint(Sketcher.Constraint("Coincident", 2, 2, 0, 1))
sketch14.addConstraint(Sketcher.Constraint("Horizontal", 0))
sketch14.addConstraint(Sketcher.Constraint("Vertical", 2))
sketch14.addConstraint(Sketcher.Constraint("PointOnObject", 1, 3, -2))
sketch14.addConstraint(Sketcher.Constraint("Radius", 1, Q("10 mm")))
sketch14.addConstraint(Sketcher.Constraint("DistanceY", 1, 3, -1, 1, Q("31 mm")))
sketch14.setExpression("Constraints[6]", "Params.sketch14_radius")
pad7 = body.newObject("PartDesign::Pad", "Pad006")
pad7.Profile = sketch14
pad7.setExpression("Length", "Params.pad7_length")
pad7.Reversed = True

sketch15 = body.newObject("Sketcher::SketchObject", "Sketch014")
sketch15.AttachmentSupport = (doc.getObject("XY_Plane"), [""])
sketch15.MapMode = "FlatFace"
sketch15.AttachmentOffset = App.Placement(App.Vector(0, 0, -41), App.Rotation())
sketch15.addGeometry(Part.LineSegment(App.Vector(30.2, 10, 0), App.Vector(30.2, -10, 0)), False)
sketch15.addGeometry(Part.LineSegment(App.Vector(30.2, -10, 0), App.Vector(30, -10, 0)), False)
sketch15.addGeometry(Part.LineSegment(App.Vector(30, -10, 0), App.Vector(30, 10, 0)), False)
sketch15.addGeometry(Part.LineSegment(App.Vector(30, 10, 0), App.Vector(30.2, 10, 0)), False)
sketch15.addConstraint(Sketcher.Constraint("Coincident", 0, 2, 1, 1))
sketch15.addConstraint(Sketcher.Constraint("Coincident", 1, 2, 2, 1))
sketch15.addConstraint(Sketcher.Constraint("Coincident", 2, 2, 3, 1))
sketch15.addConstraint(Sketcher.Constraint("Coincident", 3, 2, 0, 1))
sketch15.addConstraint(Sketcher.Constraint("Vertical", 0))
sketch15.addConstraint(Sketcher.Constraint("Horizontal", 1))
sketch15.addConstraint(Sketcher.Constraint("Vertical", 2))
sketch15.addConstraint(Sketcher.Constraint("Horizontal", 3))
sketch15.addConstraint(Sketcher.Constraint("DistanceY", 0, 2, 0, 1, Q("20 mm")))
sketch15.addConstraint(Sketcher.Constraint("DistanceX", 1, 2, 1, 1, Q("0.2 mm")))
sketch15.addConstraint(Sketcher.Constraint("DistanceY", 0, 2, -1, 1, Q("10 mm")))
sketch15.addConstraint(Sketcher.Constraint("DistanceX", -1, 1, 1, 2, Q("30 mm")))
sketch15.setExpression("Constraints[8]", "Params.sketch15_height")
sketch15.setExpression("Constraints[9]", "Params.sketch15_width")
pocket8 = body.newObject("PartDesign::Pocket", "Pocket007")
pocket8.Profile = sketch15
pocket8.setExpression("Length", "Params.pocket8_length")
pocket8.Reversed = True

sketch16 = body.newObject("Sketcher::SketchObject", "Sketch015")
sketch16.AttachmentSupport = (doc.getObject("XZ_Plane"), [""])
sketch16.MapMode = "FlatFace"
sketch16.AttachmentOffset = App.Placement(App.Vector(0, 0, 85), App.Rotation())
sketch16.addGeometry(Part.LineSegment(App.Vector(10, -41, 0), App.Vector(0, -41, 0)), False)
sketch16.addGeometry(Part.ArcOfCircle(Part.Circle(App.Vector(0, -31, 0), App.Vector(0, 0, 1), 10), math.radians(-90), math.radians(0)), False)
sketch16.addGeometry(Part.LineSegment(App.Vector(10, -31, 0), App.Vector(10, -41, 0)), False)
sketch16.addConstraint(Sketcher.Constraint("Tangent", 0, 2, 1, 1))
sketch16.addConstraint(Sketcher.Constraint("Tangent", 1, 2, 2, 1))
sketch16.addConstraint(Sketcher.Constraint("Coincident", 2, 2, 0, 1))
sketch16.addConstraint(Sketcher.Constraint("Horizontal", 0))
sketch16.addConstraint(Sketcher.Constraint("Vertical", 2))
sketch16.addConstraint(Sketcher.Constraint("PointOnObject", 1, 3, -2))
sketch16.addConstraint(Sketcher.Constraint("Radius", 1, Q("10 mm")))
sketch16.addConstraint(Sketcher.Constraint("DistanceY", 1, 3, -1, 1, Q("31 mm")))
sketch16.setExpression("Constraints[6]", "Params.sketch16_radius")
pocket9 = body.newObject("PartDesign::Pocket", "Pocket008")
pocket9.Profile = sketch16
pocket9.setExpression("Length", "Params.pocket9_length")

sketch17 = body.newObject("Sketcher::SketchObject", "Sketch016")
sketch17.AttachmentSupport = (doc.getObject("XZ_Plane"), [""])
sketch17.MapMode = "FlatFace"
sketch17.AttachmentOffset = App.Placement(App.Vector(0, 0, -10), App.Rotation())
sketch17.addGeometry(Part.ArcOfCircle(Part.Circle(App.Vector(20.1, -18.5, 0), App.Vector(0, 0, 1), 1.6), math.radians(0), math.radians(66)), False)
sketch17.addGeometry(Part.ArcOfCircle(Part.Circle(App.Vector(20.1, -18.5, 0), App.Vector(0, 0, 1), 1.6), math.radians(66), math.radians(246)), False)
sketch17.addGeometry(Part.ArcOfCircle(Part.Circle(App.Vector(20.1, -18.5, 0), App.Vector(0, 0, 1), 1.6), math.radians(-114), math.radians(0)), False)
sketch17.addConstraint(Sketcher.Constraint("Tangent", 0, 2, 1, 1))
sketch17.addConstraint(Sketcher.Constraint("Tangent", 1, 2, 2, 1))
sketch17.addConstraint(Sketcher.Constraint("Tangent", 2, 2, 0, 1))
sketch17.addConstraint(Sketcher.Constraint("Horizontal", 1, 3, 2, 2))
sketch17.addConstraint(Sketcher.Constraint("Radius", 0, Q("1.55 mm")))
sketch17.addConstraint(Sketcher.Constraint("DistanceX", -1, 1, 0, 3, Q("20.1 mm")))
sketch17.addConstraint(Sketcher.Constraint("DistanceY", 0, 3, -1, 1, Q("18.5 mm")))
sketch17.addConstraint(Sketcher.Constraint("DistanceX", -1, 1, 0, 2, Q("20.734758 mm")))
sketch17.addConstraint(Sketcher.Constraint("DistanceX", -1, 1, 1, 2, Q("19.465242 mm")))
sketch17.setExpression("Constraints[4]", "Params.sketch17_radius")
pocket10 = body.newObject("PartDesign::Pocket", "Pocket009")
pocket10.Profile = sketch17
pocket10.setExpression("Length", "Params.pocket10_length")

sketch18 = body.newObject("Sketcher::SketchObject", "Sketch017")
sketch18.AttachmentSupport = (doc.getObject("XZ_Plane"), [""])
sketch18.MapMode = "FlatFace"
sketch18.AttachmentOffset = App.Placement(App.Vector(0, 0, 85), App.Rotation())
sketch18.addGeometry(Part.Circle(App.Vector(20.1, -18.5, 0), App.Vector(0, 0, 1), 1.6), False)
sketch18.addConstraint(Sketcher.Constraint("Diameter", 0, Q("3.1 mm")))
sketch18.addConstraint(Sketcher.Constraint("DistanceX", -1, 1, 0, 3, Q("20.1 mm")))
sketch18.addConstraint(Sketcher.Constraint("DistanceY", 0, 3, -1, 1, Q("18.5 mm")))
sketch18.setExpression("Constraints[0]", "Params.sketch18_diameter")
pocket11 = body.newObject("PartDesign::Pocket", "Pocket010")
pocket11.Profile = sketch18
pocket11.setExpression("Length", "Params.pocket11_length")

sketch19 = body.newObject("Sketcher::SketchObject", "Sketch018")
sketch19.AttachmentSupport = (doc.getObject("XZ_Plane"), [""])
sketch19.MapMode = "FlatFace"
sketch19.AttachmentOffset = App.Placement(App.Vector(0, 0, 15), App.Rotation())
sketch19.addGeometry(Part.Circle(App.Vector(20.1, -18.5, 0), App.Vector(0, 0, 1), 3), False)
sketch19.addGeometry(Part.Circle(App.Vector(20.1, -18.5, 0), App.Vector(0, 0, 1), 1.6), False)
sketch19.addConstraint(Sketcher.Constraint("Coincident", 1, 3, 0, 3))
sketch19.addConstraint(Sketcher.Constraint("Diameter", 0, Q("6 mm")))
sketch19.addConstraint(Sketcher.Constraint("Diameter", 1, Q("3.1 mm")))
sketch19.addConstraint(Sketcher.Constraint("DistanceX", -1, 1, 0, 3, Q("20.1 mm")))
sketch19.addConstraint(Sketcher.Constraint("DistanceY", 0, 3, -1, 1, Q("18.5 mm")))
sketch19.setExpression("Constraints[1]", "Params.sketch19_diameter")
sketch19.setExpression("Constraints[2]", "Params.sketch19_diameter2")
pocket12 = body.newObject("PartDesign::Pocket", "Pocket011")
pocket12.Profile = sketch19
pocket12.setExpression("Length", "Params.pocket12_length")

sketch20 = body.newObject("Sketcher::SketchObject", "Sketch019")
sketch20.AttachmentSupport = (doc.getObject("XZ_Plane"), [""])
sketch20.MapMode = "FlatFace"
sketch20.AttachmentOffset = App.Placement(App.Vector(0, 0, -13), App.Rotation())
sketch20.addGeometry(Part.Circle(App.Vector(20.1, -18.5, 0), App.Vector(0, 0, 1), 3), False)
sketch20.addConstraint(Sketcher.Constraint("Diameter", 0, Q("6 mm")))
sketch20.addConstraint(Sketcher.Constraint("DistanceX", -1, 1, 0, 3, Q("20.1 mm")))
sketch20.addConstraint(Sketcher.Constraint("DistanceY", 0, 3, -1, 1, Q("18.5 mm")))
sketch20.setExpression("Constraints[0]", "Params.sketch20_diameter")
pocket13 = body.newObject("PartDesign::Pocket", "Pocket012")
pocket13.Profile = sketch20
pocket13.setExpression("Length", "Params.pocket13_length")

sketch21 = body.newObject("Sketcher::SketchObject", "Sketch020")
sketch21.AttachmentSupport = (doc.getObject("YZ_Plane"), [""])
sketch21.MapMode = "FlatFace"
sketch21.AttachmentOffset = App.Placement(App.Vector(0, 0, 35), App.Rotation())
sketch21.addGeometry(Part.ArcOfCircle(Part.Circle(App.Vector(0, -23.5, 0), App.Vector(0, 0, 1), 1.6), math.radians(0), math.radians(180)), False)
sketch21.addGeometry(Part.ArcOfCircle(Part.Circle(App.Vector(0, -23.5, 0), App.Vector(0, 0, 1), 1.5), math.radians(180), math.radians(270)), False)
sketch21.addGeometry(Part.ArcOfCircle(Part.Circle(App.Vector(0, -23.5, 0), App.Vector(0, 0, 1), 1.5), math.radians(-90), math.radians(0)), False)
sketch21.addConstraint(Sketcher.Constraint("Tangent", 0, 2, 1, 1))
sketch21.addConstraint(Sketcher.Constraint("Tangent", 1, 2, 2, 1))
sketch21.addConstraint(Sketcher.Constraint("Tangent", 2, 2, 0, 1))
sketch21.addConstraint(Sketcher.Constraint("Symmetric", 0, 2, 2, 2, -2))
sketch21.addConstraint(Sketcher.Constraint("PointOnObject", 1, 2, -2))
sketch21.addConstraint(Sketcher.Constraint("Horizontal", 2, 3, 0, 2))
sketch21.addConstraint(Sketcher.Constraint("Radius", 0, Q("1.55 mm")))
sketch21.addConstraint(Sketcher.Constraint("DistanceY", 0, 3, -1, 1, Q("23.5 mm")))
sketch21.setExpression("Constraints[6]", "Params.sketch21_radius")
pocket14 = body.newObject("PartDesign::Pocket", "Pocket013")
pocket14.Profile = sketch21
pocket14.setExpression("Length", "Params.pocket14_length")

sketch22 = body.newObject("Sketcher::SketchObject", "Sketch021")
sketch22.AttachmentSupport = (doc.getObject("YZ_Plane"), [""])
sketch22.MapMode = "FlatFace"
sketch22.AttachmentOffset = App.Placement(App.Vector(0, 0, 35), App.Rotation())
sketch22.addGeometry(Part.Circle(App.Vector(0, -23.5, 0), App.Vector(0, 0, 1), 3), False)
sketch22.addConstraint(Sketcher.Constraint("PointOnObject", 0, 3, -2))
sketch22.addConstraint(Sketcher.Constraint("Diameter", 0, Q("6 mm")))
sketch22.addConstraint(Sketcher.Constraint("DistanceY", 0, 3, -1, 1, Q("23.5 mm")))
sketch22.setExpression("Constraints[1]", "Params.sketch22_diameter")
pocket15 = body.newObject("PartDesign::Pocket", "Pocket014")
pocket15.Profile = sketch22
pocket15.setExpression("Length", "Params.pocket15_length")

doc.recompute()
